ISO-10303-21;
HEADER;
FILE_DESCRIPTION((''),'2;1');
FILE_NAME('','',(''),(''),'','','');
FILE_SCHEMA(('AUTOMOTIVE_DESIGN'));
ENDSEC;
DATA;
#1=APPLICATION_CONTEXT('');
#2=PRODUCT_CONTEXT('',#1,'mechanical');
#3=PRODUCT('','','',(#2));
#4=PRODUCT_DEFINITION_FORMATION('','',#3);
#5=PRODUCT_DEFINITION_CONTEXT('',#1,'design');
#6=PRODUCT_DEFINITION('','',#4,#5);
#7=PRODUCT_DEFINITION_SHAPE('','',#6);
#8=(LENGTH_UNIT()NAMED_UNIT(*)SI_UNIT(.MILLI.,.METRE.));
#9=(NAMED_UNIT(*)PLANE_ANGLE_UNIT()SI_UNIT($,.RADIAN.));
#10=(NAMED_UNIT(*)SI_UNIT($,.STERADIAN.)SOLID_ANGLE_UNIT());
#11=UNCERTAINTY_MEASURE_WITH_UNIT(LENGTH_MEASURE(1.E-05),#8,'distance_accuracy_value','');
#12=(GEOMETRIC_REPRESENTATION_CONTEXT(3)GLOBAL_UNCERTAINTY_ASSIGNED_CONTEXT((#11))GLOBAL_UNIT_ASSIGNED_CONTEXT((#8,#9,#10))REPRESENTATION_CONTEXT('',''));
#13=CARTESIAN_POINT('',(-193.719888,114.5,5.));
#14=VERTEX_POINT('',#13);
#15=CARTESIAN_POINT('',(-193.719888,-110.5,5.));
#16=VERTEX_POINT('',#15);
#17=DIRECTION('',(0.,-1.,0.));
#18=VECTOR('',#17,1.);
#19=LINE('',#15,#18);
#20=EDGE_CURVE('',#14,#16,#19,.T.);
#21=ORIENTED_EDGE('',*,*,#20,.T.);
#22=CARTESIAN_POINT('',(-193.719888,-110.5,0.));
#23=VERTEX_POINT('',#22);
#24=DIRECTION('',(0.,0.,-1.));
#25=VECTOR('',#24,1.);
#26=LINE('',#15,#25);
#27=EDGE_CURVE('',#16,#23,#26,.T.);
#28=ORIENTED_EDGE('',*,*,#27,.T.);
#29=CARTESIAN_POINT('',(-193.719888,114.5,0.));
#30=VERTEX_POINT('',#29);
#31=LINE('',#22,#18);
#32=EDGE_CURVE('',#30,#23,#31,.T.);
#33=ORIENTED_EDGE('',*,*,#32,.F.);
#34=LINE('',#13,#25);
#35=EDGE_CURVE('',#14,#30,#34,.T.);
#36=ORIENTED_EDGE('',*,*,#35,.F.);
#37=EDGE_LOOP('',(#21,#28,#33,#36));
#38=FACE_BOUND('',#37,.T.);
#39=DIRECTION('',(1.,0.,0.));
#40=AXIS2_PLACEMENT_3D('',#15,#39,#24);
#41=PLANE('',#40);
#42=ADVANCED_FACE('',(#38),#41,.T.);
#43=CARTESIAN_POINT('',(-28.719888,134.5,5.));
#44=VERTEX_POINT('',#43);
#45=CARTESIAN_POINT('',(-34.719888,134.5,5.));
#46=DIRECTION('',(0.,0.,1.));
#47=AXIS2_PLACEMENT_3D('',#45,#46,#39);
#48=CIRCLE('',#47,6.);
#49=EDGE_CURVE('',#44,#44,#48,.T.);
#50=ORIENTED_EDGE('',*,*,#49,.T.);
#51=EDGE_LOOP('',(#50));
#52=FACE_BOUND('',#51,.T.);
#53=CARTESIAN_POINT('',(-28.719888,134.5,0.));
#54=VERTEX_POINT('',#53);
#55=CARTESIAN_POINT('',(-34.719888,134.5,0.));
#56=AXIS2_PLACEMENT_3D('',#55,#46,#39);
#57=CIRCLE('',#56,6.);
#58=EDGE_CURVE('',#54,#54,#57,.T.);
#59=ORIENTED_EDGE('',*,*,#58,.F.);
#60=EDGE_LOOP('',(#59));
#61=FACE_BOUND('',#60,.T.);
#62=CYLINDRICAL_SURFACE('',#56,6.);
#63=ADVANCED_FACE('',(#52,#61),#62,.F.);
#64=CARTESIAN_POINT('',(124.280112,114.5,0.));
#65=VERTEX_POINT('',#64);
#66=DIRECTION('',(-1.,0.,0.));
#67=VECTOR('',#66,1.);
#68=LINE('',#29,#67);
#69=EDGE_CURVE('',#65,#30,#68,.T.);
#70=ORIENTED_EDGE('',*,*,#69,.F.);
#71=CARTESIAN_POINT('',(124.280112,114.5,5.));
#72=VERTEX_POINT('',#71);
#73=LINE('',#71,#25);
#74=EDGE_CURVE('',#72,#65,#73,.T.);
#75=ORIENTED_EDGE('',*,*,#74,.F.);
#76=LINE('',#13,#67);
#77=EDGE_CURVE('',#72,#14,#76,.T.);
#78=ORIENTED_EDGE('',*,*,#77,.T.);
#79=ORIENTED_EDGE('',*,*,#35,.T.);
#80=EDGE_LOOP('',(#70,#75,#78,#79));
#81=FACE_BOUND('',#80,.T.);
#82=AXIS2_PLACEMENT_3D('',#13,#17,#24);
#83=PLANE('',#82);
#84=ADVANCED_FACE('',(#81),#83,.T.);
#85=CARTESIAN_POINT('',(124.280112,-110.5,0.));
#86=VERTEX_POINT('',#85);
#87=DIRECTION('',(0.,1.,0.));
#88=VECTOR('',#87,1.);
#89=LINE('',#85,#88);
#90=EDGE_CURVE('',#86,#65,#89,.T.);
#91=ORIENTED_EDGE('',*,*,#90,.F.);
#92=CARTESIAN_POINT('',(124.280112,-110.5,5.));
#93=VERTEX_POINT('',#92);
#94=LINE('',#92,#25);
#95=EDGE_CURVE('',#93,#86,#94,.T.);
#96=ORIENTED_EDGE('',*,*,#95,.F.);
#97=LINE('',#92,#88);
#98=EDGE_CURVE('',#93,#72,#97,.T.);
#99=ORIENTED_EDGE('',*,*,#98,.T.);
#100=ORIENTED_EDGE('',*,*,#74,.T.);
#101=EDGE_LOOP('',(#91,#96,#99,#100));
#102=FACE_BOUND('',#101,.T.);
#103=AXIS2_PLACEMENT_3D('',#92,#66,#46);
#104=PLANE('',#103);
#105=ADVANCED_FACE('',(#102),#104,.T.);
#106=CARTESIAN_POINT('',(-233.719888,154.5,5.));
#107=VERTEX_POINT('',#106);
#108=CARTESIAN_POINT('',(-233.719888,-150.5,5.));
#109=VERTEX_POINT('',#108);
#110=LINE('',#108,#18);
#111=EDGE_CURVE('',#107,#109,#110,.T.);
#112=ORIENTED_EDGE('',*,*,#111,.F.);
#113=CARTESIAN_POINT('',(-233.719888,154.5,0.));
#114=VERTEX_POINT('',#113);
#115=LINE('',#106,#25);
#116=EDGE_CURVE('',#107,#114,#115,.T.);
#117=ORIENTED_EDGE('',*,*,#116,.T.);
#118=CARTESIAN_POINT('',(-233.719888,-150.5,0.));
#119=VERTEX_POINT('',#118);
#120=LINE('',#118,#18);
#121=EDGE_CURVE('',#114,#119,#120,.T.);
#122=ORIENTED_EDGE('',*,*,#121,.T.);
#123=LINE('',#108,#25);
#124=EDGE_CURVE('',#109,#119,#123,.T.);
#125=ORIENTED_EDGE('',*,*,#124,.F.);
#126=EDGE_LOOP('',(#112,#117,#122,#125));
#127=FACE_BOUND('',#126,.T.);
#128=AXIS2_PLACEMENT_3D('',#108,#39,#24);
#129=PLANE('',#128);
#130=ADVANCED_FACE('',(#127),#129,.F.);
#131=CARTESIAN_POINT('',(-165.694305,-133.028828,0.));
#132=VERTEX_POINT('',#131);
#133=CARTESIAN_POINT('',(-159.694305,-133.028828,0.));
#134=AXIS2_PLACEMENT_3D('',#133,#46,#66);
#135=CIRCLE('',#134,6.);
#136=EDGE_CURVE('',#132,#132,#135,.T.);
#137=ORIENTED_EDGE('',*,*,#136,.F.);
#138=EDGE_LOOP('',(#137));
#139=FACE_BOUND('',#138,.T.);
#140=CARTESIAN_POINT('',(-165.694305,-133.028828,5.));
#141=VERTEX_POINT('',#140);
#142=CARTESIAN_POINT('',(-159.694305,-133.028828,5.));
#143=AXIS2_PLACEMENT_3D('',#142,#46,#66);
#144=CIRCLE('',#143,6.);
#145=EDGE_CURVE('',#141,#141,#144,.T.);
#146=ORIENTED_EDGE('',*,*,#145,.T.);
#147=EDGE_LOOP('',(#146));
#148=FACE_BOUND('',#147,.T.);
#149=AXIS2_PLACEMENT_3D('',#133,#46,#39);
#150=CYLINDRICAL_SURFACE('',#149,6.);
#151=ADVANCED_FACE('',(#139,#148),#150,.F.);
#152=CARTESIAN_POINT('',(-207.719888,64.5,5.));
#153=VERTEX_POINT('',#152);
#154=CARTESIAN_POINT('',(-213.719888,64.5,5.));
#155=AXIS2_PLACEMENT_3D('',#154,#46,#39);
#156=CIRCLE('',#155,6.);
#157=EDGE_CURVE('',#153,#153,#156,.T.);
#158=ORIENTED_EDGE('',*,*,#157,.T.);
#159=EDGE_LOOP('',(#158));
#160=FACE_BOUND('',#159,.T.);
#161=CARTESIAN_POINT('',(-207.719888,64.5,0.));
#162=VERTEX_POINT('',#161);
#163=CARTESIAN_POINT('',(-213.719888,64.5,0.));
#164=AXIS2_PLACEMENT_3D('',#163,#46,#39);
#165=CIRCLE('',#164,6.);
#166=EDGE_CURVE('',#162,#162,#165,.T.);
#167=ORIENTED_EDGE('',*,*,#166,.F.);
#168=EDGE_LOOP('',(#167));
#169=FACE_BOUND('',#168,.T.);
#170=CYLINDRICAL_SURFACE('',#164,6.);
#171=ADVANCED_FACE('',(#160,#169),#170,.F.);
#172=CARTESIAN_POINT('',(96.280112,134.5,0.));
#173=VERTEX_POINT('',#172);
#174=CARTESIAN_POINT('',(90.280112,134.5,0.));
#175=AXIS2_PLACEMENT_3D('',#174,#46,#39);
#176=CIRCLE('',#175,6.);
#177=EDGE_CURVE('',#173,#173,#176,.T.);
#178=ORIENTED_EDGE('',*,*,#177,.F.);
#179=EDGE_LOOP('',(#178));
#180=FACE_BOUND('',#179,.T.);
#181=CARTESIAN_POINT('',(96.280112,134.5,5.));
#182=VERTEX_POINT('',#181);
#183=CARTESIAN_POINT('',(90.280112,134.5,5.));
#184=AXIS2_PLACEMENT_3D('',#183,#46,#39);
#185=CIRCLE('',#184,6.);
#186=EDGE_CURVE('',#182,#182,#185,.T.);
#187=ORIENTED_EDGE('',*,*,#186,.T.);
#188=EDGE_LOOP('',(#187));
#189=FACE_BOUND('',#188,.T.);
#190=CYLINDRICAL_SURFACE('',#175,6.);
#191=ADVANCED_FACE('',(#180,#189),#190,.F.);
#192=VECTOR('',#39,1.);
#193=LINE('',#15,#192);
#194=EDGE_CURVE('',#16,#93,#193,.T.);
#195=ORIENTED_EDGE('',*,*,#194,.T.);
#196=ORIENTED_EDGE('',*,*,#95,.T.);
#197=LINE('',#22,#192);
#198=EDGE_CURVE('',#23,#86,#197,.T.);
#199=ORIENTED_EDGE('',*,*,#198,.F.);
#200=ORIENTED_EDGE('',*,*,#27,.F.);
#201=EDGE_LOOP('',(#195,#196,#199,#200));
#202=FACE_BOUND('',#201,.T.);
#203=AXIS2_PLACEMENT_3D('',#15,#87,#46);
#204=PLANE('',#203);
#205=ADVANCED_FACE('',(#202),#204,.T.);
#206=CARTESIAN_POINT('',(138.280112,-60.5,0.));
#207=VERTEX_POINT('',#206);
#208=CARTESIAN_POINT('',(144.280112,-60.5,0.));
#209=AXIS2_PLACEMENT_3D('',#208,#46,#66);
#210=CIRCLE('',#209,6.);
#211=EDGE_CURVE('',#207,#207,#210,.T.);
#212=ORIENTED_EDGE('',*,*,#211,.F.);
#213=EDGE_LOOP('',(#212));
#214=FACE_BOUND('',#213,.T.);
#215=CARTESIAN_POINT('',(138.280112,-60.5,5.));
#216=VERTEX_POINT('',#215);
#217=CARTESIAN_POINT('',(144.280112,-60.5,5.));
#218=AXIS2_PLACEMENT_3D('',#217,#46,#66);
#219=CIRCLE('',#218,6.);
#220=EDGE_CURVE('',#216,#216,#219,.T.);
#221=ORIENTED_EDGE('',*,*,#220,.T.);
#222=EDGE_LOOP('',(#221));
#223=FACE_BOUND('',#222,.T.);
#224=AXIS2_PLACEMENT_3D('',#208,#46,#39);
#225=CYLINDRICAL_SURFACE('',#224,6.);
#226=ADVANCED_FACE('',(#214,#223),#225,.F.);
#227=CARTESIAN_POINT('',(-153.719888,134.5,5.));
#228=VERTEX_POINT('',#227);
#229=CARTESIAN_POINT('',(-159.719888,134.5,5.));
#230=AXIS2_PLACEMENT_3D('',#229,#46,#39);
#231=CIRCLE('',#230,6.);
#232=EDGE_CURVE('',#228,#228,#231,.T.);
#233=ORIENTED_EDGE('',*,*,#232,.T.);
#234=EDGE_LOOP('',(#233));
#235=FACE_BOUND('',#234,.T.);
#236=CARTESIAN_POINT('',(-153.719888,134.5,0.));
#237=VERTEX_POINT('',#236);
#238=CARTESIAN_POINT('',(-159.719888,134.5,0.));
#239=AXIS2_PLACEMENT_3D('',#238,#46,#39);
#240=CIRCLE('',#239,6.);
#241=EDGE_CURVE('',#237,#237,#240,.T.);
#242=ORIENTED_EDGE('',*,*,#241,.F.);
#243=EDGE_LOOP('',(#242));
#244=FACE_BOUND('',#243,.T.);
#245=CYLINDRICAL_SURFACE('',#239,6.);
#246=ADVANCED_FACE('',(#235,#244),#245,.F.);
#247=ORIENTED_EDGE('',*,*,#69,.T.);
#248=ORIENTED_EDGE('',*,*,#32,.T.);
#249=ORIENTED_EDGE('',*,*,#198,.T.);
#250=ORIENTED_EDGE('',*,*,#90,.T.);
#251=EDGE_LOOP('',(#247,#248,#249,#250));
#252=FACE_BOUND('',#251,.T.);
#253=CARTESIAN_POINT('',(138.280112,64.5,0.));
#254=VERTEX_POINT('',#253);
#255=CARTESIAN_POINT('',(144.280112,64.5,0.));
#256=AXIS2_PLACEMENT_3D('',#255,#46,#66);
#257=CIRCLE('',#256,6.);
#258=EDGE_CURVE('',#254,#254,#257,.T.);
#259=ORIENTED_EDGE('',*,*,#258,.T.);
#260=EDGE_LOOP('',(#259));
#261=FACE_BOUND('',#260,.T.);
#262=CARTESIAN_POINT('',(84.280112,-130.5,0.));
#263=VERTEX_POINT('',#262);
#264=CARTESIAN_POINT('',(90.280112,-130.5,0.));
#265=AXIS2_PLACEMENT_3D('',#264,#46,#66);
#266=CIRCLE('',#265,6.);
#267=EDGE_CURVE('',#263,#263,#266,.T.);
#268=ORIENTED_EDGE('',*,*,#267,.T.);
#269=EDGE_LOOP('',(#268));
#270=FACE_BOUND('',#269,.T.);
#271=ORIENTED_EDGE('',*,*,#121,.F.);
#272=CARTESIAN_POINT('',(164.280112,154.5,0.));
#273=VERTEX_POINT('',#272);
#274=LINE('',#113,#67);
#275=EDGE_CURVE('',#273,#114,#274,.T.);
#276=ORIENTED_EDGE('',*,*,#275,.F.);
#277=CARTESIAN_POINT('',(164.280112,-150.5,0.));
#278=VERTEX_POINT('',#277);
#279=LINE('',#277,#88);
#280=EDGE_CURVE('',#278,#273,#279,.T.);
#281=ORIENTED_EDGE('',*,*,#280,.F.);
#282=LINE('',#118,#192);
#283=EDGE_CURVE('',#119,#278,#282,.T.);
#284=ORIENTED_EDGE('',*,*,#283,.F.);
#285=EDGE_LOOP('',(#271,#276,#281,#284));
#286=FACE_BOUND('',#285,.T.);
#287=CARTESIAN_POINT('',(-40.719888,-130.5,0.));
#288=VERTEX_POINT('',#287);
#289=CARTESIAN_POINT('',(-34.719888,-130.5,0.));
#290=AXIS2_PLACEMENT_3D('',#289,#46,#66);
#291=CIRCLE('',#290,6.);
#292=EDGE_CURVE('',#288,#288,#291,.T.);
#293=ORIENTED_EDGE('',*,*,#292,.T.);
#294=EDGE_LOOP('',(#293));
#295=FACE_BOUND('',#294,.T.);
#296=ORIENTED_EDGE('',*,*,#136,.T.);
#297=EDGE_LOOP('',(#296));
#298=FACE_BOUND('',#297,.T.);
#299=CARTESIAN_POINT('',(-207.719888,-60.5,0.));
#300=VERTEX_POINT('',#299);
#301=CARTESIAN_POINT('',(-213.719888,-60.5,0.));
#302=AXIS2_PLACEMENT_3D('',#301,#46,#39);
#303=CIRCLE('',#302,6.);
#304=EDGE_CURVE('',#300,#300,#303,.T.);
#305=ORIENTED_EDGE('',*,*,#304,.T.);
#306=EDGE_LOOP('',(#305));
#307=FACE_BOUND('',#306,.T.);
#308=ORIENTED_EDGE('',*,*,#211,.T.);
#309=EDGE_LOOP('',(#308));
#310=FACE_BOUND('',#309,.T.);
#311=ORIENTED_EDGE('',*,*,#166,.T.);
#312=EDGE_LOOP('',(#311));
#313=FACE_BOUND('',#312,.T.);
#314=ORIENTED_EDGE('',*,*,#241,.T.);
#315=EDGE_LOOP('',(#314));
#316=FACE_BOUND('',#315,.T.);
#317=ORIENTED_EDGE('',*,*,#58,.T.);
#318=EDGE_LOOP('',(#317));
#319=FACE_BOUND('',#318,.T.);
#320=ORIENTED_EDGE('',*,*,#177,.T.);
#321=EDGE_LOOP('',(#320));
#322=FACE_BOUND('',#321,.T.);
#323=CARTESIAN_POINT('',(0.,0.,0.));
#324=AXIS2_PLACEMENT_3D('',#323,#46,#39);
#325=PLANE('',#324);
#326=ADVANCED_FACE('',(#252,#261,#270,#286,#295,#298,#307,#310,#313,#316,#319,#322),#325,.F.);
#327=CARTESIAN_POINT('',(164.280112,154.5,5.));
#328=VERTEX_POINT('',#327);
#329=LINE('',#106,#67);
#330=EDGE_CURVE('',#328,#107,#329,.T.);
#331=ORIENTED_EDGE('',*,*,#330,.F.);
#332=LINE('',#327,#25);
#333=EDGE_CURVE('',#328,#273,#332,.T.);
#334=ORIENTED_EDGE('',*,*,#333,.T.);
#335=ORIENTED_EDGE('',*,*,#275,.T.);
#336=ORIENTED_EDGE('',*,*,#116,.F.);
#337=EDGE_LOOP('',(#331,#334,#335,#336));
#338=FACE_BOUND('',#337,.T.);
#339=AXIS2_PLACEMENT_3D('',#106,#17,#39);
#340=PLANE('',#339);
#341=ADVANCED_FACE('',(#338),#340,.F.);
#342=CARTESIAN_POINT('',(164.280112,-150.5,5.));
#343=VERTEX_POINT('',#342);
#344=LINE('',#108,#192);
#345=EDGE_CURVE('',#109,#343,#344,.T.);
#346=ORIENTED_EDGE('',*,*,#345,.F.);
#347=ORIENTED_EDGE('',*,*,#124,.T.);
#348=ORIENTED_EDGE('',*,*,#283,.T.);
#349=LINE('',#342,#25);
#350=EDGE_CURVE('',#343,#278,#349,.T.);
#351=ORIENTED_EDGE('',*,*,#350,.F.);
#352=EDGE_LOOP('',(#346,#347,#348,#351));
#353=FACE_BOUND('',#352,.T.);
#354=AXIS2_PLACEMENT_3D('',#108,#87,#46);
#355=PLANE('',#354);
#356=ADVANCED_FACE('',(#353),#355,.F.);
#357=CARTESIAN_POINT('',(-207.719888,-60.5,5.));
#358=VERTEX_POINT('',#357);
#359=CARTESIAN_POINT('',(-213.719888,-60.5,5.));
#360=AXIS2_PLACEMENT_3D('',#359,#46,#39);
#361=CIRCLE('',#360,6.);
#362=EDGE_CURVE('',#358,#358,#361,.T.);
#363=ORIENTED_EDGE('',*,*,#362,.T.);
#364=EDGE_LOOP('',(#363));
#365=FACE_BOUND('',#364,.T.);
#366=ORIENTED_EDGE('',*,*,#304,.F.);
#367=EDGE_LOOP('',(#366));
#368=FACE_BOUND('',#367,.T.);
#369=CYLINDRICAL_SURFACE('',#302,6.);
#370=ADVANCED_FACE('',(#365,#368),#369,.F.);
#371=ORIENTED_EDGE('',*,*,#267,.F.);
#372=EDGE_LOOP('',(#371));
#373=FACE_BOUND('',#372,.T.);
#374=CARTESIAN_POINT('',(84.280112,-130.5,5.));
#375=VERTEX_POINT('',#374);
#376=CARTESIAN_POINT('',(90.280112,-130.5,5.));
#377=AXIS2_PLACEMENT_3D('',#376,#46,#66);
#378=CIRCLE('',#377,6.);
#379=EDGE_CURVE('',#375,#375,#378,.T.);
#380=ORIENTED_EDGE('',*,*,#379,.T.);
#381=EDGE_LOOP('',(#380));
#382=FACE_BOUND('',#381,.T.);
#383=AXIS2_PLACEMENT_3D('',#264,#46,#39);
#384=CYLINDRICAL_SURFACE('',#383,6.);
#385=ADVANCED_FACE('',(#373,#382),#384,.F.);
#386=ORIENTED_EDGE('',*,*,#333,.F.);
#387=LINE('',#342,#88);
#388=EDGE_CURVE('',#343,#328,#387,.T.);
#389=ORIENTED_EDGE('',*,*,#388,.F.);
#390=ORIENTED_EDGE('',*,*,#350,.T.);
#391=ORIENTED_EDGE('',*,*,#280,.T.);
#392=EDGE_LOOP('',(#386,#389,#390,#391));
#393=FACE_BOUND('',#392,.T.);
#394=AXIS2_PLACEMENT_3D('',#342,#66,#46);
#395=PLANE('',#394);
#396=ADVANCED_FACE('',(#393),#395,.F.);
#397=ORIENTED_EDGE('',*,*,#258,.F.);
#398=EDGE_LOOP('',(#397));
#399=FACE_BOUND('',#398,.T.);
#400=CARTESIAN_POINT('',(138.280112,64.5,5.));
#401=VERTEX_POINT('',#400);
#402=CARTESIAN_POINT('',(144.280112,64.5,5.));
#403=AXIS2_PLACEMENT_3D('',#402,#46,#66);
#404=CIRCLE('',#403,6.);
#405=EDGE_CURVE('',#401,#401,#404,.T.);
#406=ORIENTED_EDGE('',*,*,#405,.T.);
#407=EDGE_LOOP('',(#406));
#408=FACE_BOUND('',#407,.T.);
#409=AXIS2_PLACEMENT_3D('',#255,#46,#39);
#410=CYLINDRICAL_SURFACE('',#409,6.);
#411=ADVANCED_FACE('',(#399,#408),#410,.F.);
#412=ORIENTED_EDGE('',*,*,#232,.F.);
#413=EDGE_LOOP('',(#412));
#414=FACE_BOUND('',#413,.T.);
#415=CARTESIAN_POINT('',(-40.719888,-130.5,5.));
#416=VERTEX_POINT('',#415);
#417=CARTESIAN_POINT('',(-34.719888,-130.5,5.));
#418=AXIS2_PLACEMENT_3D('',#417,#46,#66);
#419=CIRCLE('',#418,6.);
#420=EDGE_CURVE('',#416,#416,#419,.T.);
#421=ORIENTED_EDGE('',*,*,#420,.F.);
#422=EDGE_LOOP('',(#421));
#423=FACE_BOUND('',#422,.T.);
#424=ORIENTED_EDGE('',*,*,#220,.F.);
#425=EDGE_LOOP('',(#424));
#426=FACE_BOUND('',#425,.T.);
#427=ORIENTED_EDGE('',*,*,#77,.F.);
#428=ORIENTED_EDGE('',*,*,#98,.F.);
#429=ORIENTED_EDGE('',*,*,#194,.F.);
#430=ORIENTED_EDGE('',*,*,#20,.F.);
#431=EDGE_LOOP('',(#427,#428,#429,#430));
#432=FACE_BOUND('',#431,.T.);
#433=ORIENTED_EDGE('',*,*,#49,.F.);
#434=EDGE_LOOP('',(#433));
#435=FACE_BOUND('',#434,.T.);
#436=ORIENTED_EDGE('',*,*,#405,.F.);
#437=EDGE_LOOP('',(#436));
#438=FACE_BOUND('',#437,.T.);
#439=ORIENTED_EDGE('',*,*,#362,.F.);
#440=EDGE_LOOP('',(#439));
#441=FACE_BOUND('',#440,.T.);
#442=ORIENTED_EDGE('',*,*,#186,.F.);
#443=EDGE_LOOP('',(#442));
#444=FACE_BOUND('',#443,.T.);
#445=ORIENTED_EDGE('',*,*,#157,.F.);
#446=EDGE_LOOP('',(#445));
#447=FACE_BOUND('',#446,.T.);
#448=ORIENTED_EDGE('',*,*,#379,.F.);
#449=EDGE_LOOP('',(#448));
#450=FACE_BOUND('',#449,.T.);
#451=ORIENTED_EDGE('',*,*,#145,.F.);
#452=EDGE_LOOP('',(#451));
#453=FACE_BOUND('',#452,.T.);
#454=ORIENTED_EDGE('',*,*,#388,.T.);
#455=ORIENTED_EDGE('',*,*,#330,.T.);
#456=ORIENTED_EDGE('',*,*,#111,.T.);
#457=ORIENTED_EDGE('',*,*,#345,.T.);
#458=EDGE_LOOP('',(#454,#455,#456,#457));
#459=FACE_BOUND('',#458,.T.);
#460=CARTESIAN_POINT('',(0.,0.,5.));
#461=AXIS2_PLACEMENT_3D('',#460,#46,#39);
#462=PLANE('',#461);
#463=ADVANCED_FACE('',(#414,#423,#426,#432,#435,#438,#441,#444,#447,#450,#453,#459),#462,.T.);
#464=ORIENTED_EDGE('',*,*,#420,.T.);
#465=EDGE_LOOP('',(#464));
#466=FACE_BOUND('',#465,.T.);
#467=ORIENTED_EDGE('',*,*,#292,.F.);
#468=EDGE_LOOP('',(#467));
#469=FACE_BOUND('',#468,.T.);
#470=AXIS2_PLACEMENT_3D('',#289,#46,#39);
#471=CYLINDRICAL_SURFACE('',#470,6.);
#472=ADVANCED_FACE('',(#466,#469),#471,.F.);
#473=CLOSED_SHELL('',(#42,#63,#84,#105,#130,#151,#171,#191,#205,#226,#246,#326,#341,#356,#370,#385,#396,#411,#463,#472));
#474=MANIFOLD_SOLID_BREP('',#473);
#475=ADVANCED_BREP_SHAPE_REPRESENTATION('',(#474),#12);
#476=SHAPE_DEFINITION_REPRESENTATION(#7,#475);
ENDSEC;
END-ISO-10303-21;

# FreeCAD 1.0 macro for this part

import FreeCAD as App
import Part
import Sketcher


def add_polygon(sketch, points):
    """Adds a closed chain of lines whose ends are joined by coincident constraints."""
    first, n = sketch.GeometryCount, len(points)
    for a, b in zip(points, points[1:] + points[:1]):
        sketch.addGeometry(Part.LineSegment(App.Vector(*a, 0), App.Vector(*b, 0)), False)
    for i in range(n):
        sketch.addConstraint(Sketcher.Constraint("Coincident", first + i, 2, first + (i + 1) % n, 1))

doc = App.newDocument("Part")
params = doc.addObject("Spreadsheet::Sheet", "Params")
for row, (alias, value) in enumerate([
    ("sketch1_width", "398 mm"),
    ("sketch1_width2", "318 mm"),
    ("sketch1_height", "305 mm"),
    ("sketch1_height2", "225 mm"),
    ("pad1_length", "5 mm"),
    ("sketch2_diameter", "12 mm"),
    ("pocket1_length", "5 mm"),
], start=1):
    params.set(f"A{row}", alias)
    params.set(f"B{row}", "=" + value)
    params.setAlias(f"B{row}", alias)

body = doc.addObject("PartDesign::Body", "Body")

# Sketch on XY plane
sketch1 = body.newObject("Sketcher::SketchObject", "Sketch")
sketch1.AttachmentSupport = (doc.getObject("XY_Plane"), [""])
sketch1.MapMode = "FlatFace"
add_polygon(sketch1, [(-234, 154), (-234, -150), (164, -150), (164, 154)])  # lines 0-3
add_polygon(sketch1, [(124, -110), (-194, -110), (-194, 114), (124, 114)])  # lines 4-7
sketch1.addConstraint([
    Sketcher.Constraint("Vertical", 0),
    Sketcher.Constraint("Horizontal", 1),
    Sketcher.Constraint("Vertical", 2),
    Sketcher.Constraint("Horizontal", 3),
    Sketcher.Constraint("Horizontal", 4),
    Sketcher.Constraint("Vertical", 5),
    Sketcher.Constraint("Horizontal", 6),
    Sketcher.Constraint("Vertical", 7),
    Sketcher.Constraint("DistanceX", 1, 1, 1, 2, 398.0),
    Sketcher.Constraint("DistanceX", 4, 2, 4, 1, 318.0),
    Sketcher.Constraint("DistanceY", 0, 2, 0, 1, 305.0),
    Sketcher.Constraint("DistanceY", 5, 1, 5, 2, 225.0),
    Sketcher.Constraint("DistanceX", 0, 2, 4, 2, 40.0),
    Sketcher.Constraint("DistanceY", 0, 2, 4, 2, 40.0),
    Sketcher.Constraint("DistanceY", 0, 2, -1, 1, 150.5),
    Sketcher.Constraint("DistanceX", 0, 2, -1, 1, 233.719888),
])
sketch1.setExpression("Constraints[16]", "Params.sketch1_width")
sketch1.setExpression("Constraints[17]", "Params.sketch1_width2")
sketch1.setExpression("Constraints[18]", "Params.sketch1_height")
sketch1.setExpression("Constraints[19]", "Params.sketch1_height2")
pad1 = body.newObject("PartDesign::Pad", "Pad")
pad1.Profile = sketch1
pad1.setExpression("Length", "Params.pad1_length")

# Sketch on XY plane
sketch2 = body.newObject("Sketcher::SketchObject", "Sketch001")
sketch2.AttachmentSupport = (doc.getObject("XY_Plane"), [""])
sketch2.MapMode = "FlatFace"
sketch2.AttachmentOffset = App.Placement(App.Vector(0, 0, 5), App.Rotation())
sketch2.addGeometry([
    Part.Circle(App.Vector(-214, 64, 0), App.Vector(0, 0, 1), 6),  # 0
    Part.Circle(App.Vector(-214, -60, 0), App.Vector(0, 0, 1), 6),  # 1
    Part.Circle(App.Vector(-160, -133, 0), App.Vector(0, 0, 1), 6),  # 2
    Part.Circle(App.Vector(-35, -130, 0), App.Vector(0, 0, 1), 6),  # 3
    Part.Circle(App.Vector(90, -130, 0), App.Vector(0, 0, 1), 6),  # 4
    Part.Circle(App.Vector(90, 134, 0), App.Vector(0, 0, 1), 6),  # 5
    Part.Circle(App.Vector(-35, 134, 0), App.Vector(0, 0, 1), 6),  # 6
    Part.Circle(App.Vector(-160, 134, 0), App.Vector(0, 0, 1), 6),  # 7
    Part.Circle(App.Vector(144, -60, 0), App.Vector(0, 0, 1), 6),  # 8
    Part.Circle(App.Vector(144, 64, 0), App.Vector(0, 0, 1), 6),  # 9
], False)
sketch2.addConstraint([
    Sketcher.Constraint("Equal", 0, 1),
    Sketcher.Constraint("Equal", 1, 2),
    Sketcher.Constraint("Equal", 2, 3),
    Sketcher.Constraint("Equal", 3, 4),
    Sketcher.Constraint("Equal", 4, 5),
    Sketcher.Constraint("Equal", 5, 6),
    Sketcher.Constraint("Equal", 6, 7),
    Sketcher.Constraint("Equal", 7, 8),
    Sketcher.Constraint("Equal", 8, 9),
    Sketcher.Constraint("Horizontal", 3, 3, 4, 3),
    Sketcher.Constraint("Horizontal", 5, 3, 6, 3),
    Sketcher.Constraint("Horizontal", 6, 3, 7, 3),
    Sketcher.Constraint("Horizontal", 1, 3, 8, 3),
    Sketcher.Constraint("Horizontal", 0, 3, 9, 3),
    Sketcher.Constraint("Vertical", 0, 3, 1, 3),
    Sketcher.Constraint("Vertical", 4, 3, 5, 3),
    Sketcher.Constraint("Vertical", 3, 3, 6, 3),
    Sketcher.Constraint("Vertical", 8, 3, 9, 3),
    Sketcher.Constraint("Diameter", 0, 12.0),
    Sketcher.Constraint("DistanceY", 1, 3, 0, 3, 125.0),
    Sketcher.Constraint("DistanceX", 1, 3, 3, 3, 179.0),
    Sketcher.Constraint("DistanceY", 3, 3, 1, 3, 70.0),
    Sketcher.Constraint("DistanceX", 3, 3, 4, 3, 125.0),
    Sketcher.Constraint("DistanceY", 4, 3, 5, 3, 265.0),
    Sketcher.Constraint("DistanceX", 0, 3, 7, 3, 54.0),
    Sketcher.Constraint("DistanceX", 4, 3, 8, 3, 54.0),
    Sketcher.Constraint("DistanceY", -1, 1, 0, 3, 64.5),
    Sketcher.Constraint("DistanceX", 0, 3, -1, 1, 213.719888),
    Sketcher.Constraint("DistanceX", 2, 3, -1, 1, 159.694305),
    Sketcher.Constraint("DistanceY", 2, 3, -1, 1, 133.028828),
])
sketch2.setExpression("Constraints[18]", "Params.sketch2_diameter")
pocket1 = body.newObject("PartDesign::Pocket", "Pocket")
pocket1.Profile = sketch2
pocket1.setExpression("Length", "Params.pocket1_length")

doc.recompute()
